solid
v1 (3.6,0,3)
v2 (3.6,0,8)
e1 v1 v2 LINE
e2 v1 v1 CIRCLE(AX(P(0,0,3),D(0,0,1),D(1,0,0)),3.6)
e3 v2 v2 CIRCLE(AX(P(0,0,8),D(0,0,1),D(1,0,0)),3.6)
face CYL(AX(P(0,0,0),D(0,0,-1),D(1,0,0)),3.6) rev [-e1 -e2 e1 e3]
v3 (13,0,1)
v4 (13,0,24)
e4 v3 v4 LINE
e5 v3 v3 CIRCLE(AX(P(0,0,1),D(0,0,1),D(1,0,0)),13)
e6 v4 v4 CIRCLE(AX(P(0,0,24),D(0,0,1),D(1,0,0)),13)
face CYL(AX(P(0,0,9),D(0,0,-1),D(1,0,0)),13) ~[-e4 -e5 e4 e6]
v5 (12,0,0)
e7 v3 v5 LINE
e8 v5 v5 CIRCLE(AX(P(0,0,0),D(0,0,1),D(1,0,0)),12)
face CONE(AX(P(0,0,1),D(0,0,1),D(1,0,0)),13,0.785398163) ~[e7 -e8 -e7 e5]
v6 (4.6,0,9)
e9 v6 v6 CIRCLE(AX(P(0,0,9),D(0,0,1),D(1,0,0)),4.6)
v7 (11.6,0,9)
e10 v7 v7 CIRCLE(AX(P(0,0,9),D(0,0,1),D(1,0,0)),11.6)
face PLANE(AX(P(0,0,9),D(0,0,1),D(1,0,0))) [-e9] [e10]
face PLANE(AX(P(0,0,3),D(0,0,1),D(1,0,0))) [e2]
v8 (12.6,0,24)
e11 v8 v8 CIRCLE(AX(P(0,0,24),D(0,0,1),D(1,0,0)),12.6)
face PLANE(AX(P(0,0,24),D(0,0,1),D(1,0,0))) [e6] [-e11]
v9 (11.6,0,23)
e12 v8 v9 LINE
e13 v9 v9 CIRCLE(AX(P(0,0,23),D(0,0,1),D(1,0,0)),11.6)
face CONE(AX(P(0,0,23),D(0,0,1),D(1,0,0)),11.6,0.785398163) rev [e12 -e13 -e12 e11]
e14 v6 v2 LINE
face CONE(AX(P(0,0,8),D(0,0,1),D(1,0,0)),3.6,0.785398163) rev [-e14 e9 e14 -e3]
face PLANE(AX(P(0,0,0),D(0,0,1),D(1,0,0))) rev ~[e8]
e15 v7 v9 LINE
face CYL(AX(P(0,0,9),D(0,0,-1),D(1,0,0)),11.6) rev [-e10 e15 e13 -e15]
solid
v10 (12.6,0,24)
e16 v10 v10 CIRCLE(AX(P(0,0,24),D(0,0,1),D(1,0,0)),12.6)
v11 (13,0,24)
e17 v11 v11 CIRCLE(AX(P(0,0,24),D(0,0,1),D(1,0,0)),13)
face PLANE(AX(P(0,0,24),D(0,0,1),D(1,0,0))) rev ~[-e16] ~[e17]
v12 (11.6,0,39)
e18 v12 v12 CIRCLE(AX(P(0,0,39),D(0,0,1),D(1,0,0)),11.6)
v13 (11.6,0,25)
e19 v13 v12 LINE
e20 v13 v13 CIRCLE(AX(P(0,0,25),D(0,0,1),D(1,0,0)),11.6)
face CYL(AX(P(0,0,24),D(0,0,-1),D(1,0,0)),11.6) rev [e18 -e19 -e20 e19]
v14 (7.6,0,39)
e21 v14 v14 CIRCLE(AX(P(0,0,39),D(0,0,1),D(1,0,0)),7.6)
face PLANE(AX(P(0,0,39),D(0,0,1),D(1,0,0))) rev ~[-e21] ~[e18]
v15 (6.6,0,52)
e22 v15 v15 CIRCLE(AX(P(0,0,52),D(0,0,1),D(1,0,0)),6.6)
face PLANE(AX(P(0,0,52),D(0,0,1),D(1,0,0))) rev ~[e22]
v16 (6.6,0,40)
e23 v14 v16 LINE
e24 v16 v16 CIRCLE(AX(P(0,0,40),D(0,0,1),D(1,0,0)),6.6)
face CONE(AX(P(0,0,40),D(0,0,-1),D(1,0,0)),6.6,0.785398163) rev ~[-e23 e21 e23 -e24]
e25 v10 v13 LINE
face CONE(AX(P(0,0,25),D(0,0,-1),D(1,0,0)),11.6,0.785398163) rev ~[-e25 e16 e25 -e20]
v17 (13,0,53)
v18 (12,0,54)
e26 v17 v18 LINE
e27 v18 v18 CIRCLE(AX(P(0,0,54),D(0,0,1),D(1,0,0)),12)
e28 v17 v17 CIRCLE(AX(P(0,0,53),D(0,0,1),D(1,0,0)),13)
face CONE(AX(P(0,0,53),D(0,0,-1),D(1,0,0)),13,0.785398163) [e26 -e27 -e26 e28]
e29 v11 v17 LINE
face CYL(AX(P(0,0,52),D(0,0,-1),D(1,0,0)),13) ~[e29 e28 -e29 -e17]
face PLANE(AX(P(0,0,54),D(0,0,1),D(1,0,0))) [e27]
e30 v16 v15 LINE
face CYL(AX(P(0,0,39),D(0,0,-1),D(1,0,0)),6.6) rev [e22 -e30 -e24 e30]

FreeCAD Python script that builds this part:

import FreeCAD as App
import Part
import Sketcher

V = App.Vector
Q = App.Units.Quantity


def edges_at(feature, points):
    """Names of the edges that pass closest to the given points."""
    edges = feature.Shape.Edges
    near = lambda p: min(range(len(edges)), key=lambda i: edges[i].distToShape(Part.Vertex(*p))[0])
    return sorted({f"Edge{near(p) + 1}" for p in points})

doc = App.newDocument("Part")
params = doc.addObject("Spreadsheet::Sheet", "Params")
for row, (alias, value) in enumerate([
    ("sketch1_diameter", "7.2 mm"),
    ("pad1_length", "3 mm"),
    ("sketch2_diameter", "26 mm"),
    ("sketch2_diameter2", "7.2 mm"),
    ("pad2_length", "9 mm"),
    ("sketch3_diameter", "26 mm"),
    ("sketch3_diameter2", "23.2 mm"),
    ("pad3_length", "15 mm"),
    ("chamfer_size", "1 mm"),
    ("sketch4_diameter", "26 mm"),
    ("sketch4_diameter2", "23.2 mm"),
    ("pad4_length", "15 mm"),
    ("sketch5_diameter", "26 mm"),
    ("sketch5_diameter2", "13.2 mm"),
    ("pad5_length", "13 mm"),
    ("sketch6_diameter", "26 mm"),
    ("pad6_length", "2 mm"),
    ("chamfer2_size", "1 mm"),
], start=1):
    params.set(f"A{row}", alias)
    params.set(f"B{row}", "=" + value)
    params.setAlias(f"B{row}", alias)

body = doc.addObject("PartDesign::Body", "Body")

# Sketch on XY plane
sketch1 = doc.addObject("Sketcher::SketchObject", "Sketch")
body.addObject(sketch1)
sketch1.AttachmentSupport = (doc.XY_Plane, [""])
sketch1.MapMode = "FlatFace"
sketch1.addGeometry(Part.Circle(V(0, 0, 0), V(0, 0, 1), 3.6), False)
sketch1.addConstraint(Sketcher.Constraint("Coincident", 0, 3, -1, 1))
sketch1.addConstraint(Sketcher.Constraint("Diameter", 0, Q("7.2 mm")))
sketch1.setExpression("Constraints[1]", "Params.sketch1_diameter")
pad1 = doc.addObject("PartDesign::Pad", "Pad")
body.addObject(pad1)
pad1.Profile = sketch1
pad1.setExpression("Length", "Params.pad1_length")

# Sketch on XY plane
sketch2 = doc.addObject("Sketcher::SketchObject", "Sketch001")
body.addObject(sketch2)
sketch2.AttachmentSupport = (doc.XY_Plane, [""])
sketch2.MapMode = "FlatFace"
sketch2.addGeometry(Part.Circle(V(0, 0, 0), V(0, 0, 1), 13), False)
sketch2.addGeometry(Part.Circle(V(0, 0, 0), V(0, 0, 1), 3.6), False)
sketch2.addConstraint(Sketcher.Constraint("Coincident", 0, 3, -1, 1))
sketch2.addConstraint(Sketcher.Constraint("Coincident", 1, 3, -1, 1))
sketch2.addConstraint(Sketcher.Constraint("Diameter", 0, Q("26 mm")))
sketch2.addConstraint(Sketcher.Constraint("Diameter", 1, Q("7.2 mm")))
sketch2.setExpression("Constraints[2]", "Params.sketch2_diameter")
sketch2.setExpression("Constraints[3]", "Params.sketch2_diameter2")
pad2 = doc.addObject("PartDesign::Pad", "Pad001")
body.addObject(pad2)
pad2.Profile = sketch2
pad2.setExpression("Length", "Params.pad2_length")

# Sketch on XY plane
sketch3 = doc.addObject("Sketcher::SketchObject", "Sketch002")
body.addObject(sketch3)
sketch3.AttachmentSupport = (doc.XY_Plane, [""])
sketch3.MapMode = "FlatFace"
sketch3.AttachmentOffset = App.Placement(V(0, 0, 9), App.Rotation())
sketch3.addGeometry(Part.Circle(V(0, 0, 0), V(0, 0, 1), 13), False)
sketch3.addGeometry(Part.Circle(V(0, 0, 0), V(0, 0, 1), 12), False)
sketch3.addConstraint(Sketcher.Constraint("Coincident", 0, 3, -1, 1))
sketch3.addConstraint(Sketcher.Constraint("Coincident", 1, 3, -1, 1))
sketch3.addConstraint(Sketcher.Constraint("Diameter", 0, Q("26 mm")))
sketch3.addConstraint(Sketcher.Constraint("Diameter", 1, Q("23.2 mm")))
sketch3.setExpression("Constraints[2]", "Params.sketch3_diameter")
sketch3.setExpression("Constraints[3]", "Params.sketch3_diameter2")
pad3 = doc.addObject("PartDesign::Pad", "Pad002")
body.addObject(pad3)
pad3.Profile = sketch3
pad3.setExpression("Length", "Params.pad3_length")
doc.recompute()

chamfer = doc.addObject("PartDesign::Chamfer", "Chamfer")
body.addObject(chamfer)
chamfer.Base = (pad3, edges_at(pad3, [(-11.6, 0, 24), (-3.6, 0, 9), (-13, 0, 0)]))
chamfer.setExpression("Size", "Params.chamfer_size")
body2 = doc.addObject("PartDesign::Body", "Body001")

# Sketch on XY plane
sketch4 = doc.addObject("Sketcher::SketchObject", "Sketch003")
body2.addObject(sketch4)
sketch4.AttachmentSupport = (doc.getObject("XY_Plane001"), [""])
sketch4.MapMode = "FlatFace"
sketch4.AttachmentOffset = App.Placement(V(0, 0, 24), App.Rotation())
sketch4.addGeometry(Part.Circle(V(0, 0, 0), V(0, 0, 1), 13), False)
sketch4.addGeometry(Part.Circle(V(0, 0, 0), V(0, 0, 1), 12), False)
sketch4.addConstraint(Sketcher.Constraint("Coincident", 0, 3, -1, 1))
sketch4.addConstraint(Sketcher.Constraint("Coincident", 1, 3, -1, 1))
sketch4.addConstraint(Sketcher.Constraint("Diameter", 0, Q("26 mm")))
sketch4.addConstraint(Sketcher.Constraint("Diameter", 1, Q("23.2 mm")))
sketch4.setExpression("Constraints[2]", "Params.sketch4_diameter")
sketch4.setExpression("Constraints[3]", "Params.sketch4_diameter2")
pad4 = doc.addObject("PartDesign::Pad", "Pad003")
body2.addObject(pad4)
pad4.Profile = sketch4
pad4.setExpression("Length", "Params.pad4_length")

# Sketch on XY plane
sketch5 = doc.addObject("Sketcher::SketchObject", "Sketch004")
body2.addObject(sketch5)
sketch5.AttachmentSupport = (doc.getObject("XY_Plane001"), [""])
sketch5.MapMode = "FlatFace"
sketch5.AttachmentOffset = App.Placement(V(0, 0, 39), App.Rotation())
sketch5.addGeometry(Part.Circle(V(0, 0, 0), V(0, 0, 1), 13), False)
sketch5.addGeometry(Part.Circle(V(0, 0, 0), V(0, 0, 1), 7), False)
sketch5.addConstraint(Sketcher.Constraint("Coincident", 0, 3, -1, 1))
sketch5.addConstraint(Sketcher.Constraint("Coincident", 1, 3, -1, 1))
sketch5.addConstraint(Sketcher.Constraint("Diameter", 0, Q("26 mm")))
sketch5.addConstraint(Sketcher.Constraint("Diameter", 1, Q("13.2 mm")))
sketch5.setExpression("Constraints[2]", "Params.sketch5_diameter")
sketch5.setExpression("Constraints[3]", "Params.sketch5_diameter2")
pad5 = doc.addObject("PartDesign::Pad", "Pad004")
body2.addObject(pad5)
pad5.Profile = sketch5
pad5.setExpression("Length", "Params.pad5_length")

# Sketch on XY plane
sketch6 = doc.addObject("Sketcher::SketchObject", "Sketch005")
body2.addObject(sketch6)
sketch6.AttachmentSupport = (doc.getObject("XY_Plane001"), [""])
sketch6.MapMode = "FlatFace"
sketch6.AttachmentOffset = App.Placement(V(0, 0, 52), App.Rotation())
sketch6.addGeometry(Part.Circle(V(0, 0, 0), V(0, 0, 1), 13), False)
sketch6.addConstraint(Sketcher.Constraint("Coincident", 0, 3, -1, 1))
sketch6.addConstraint(Sketcher.Constraint("Diameter", 0, Q("26 mm")))
sketch6.setExpression("Constraints[1]", "Params.sketch6_diameter")
pad6 = doc.addObject("PartDesign::Pad", "Pad005")
body2.addObject(pad6)
pad6.Profile = sketch6
pad6.setExpression("Length", "Params.pad6_length")
doc.recompute()

chamfer2 = doc.addObject("PartDesign::Chamfer", "Chamfer001")
body2.addObject(chamfer2)
chamfer2.Base = (pad6, edges_at(pad6, [(-6.6, 0, 39), (-11.6, 0, 24), (-13, 0, 54)]))
chamfer2.setExpression("Size", "Params.chamfer2_size")

doc.recompute()
